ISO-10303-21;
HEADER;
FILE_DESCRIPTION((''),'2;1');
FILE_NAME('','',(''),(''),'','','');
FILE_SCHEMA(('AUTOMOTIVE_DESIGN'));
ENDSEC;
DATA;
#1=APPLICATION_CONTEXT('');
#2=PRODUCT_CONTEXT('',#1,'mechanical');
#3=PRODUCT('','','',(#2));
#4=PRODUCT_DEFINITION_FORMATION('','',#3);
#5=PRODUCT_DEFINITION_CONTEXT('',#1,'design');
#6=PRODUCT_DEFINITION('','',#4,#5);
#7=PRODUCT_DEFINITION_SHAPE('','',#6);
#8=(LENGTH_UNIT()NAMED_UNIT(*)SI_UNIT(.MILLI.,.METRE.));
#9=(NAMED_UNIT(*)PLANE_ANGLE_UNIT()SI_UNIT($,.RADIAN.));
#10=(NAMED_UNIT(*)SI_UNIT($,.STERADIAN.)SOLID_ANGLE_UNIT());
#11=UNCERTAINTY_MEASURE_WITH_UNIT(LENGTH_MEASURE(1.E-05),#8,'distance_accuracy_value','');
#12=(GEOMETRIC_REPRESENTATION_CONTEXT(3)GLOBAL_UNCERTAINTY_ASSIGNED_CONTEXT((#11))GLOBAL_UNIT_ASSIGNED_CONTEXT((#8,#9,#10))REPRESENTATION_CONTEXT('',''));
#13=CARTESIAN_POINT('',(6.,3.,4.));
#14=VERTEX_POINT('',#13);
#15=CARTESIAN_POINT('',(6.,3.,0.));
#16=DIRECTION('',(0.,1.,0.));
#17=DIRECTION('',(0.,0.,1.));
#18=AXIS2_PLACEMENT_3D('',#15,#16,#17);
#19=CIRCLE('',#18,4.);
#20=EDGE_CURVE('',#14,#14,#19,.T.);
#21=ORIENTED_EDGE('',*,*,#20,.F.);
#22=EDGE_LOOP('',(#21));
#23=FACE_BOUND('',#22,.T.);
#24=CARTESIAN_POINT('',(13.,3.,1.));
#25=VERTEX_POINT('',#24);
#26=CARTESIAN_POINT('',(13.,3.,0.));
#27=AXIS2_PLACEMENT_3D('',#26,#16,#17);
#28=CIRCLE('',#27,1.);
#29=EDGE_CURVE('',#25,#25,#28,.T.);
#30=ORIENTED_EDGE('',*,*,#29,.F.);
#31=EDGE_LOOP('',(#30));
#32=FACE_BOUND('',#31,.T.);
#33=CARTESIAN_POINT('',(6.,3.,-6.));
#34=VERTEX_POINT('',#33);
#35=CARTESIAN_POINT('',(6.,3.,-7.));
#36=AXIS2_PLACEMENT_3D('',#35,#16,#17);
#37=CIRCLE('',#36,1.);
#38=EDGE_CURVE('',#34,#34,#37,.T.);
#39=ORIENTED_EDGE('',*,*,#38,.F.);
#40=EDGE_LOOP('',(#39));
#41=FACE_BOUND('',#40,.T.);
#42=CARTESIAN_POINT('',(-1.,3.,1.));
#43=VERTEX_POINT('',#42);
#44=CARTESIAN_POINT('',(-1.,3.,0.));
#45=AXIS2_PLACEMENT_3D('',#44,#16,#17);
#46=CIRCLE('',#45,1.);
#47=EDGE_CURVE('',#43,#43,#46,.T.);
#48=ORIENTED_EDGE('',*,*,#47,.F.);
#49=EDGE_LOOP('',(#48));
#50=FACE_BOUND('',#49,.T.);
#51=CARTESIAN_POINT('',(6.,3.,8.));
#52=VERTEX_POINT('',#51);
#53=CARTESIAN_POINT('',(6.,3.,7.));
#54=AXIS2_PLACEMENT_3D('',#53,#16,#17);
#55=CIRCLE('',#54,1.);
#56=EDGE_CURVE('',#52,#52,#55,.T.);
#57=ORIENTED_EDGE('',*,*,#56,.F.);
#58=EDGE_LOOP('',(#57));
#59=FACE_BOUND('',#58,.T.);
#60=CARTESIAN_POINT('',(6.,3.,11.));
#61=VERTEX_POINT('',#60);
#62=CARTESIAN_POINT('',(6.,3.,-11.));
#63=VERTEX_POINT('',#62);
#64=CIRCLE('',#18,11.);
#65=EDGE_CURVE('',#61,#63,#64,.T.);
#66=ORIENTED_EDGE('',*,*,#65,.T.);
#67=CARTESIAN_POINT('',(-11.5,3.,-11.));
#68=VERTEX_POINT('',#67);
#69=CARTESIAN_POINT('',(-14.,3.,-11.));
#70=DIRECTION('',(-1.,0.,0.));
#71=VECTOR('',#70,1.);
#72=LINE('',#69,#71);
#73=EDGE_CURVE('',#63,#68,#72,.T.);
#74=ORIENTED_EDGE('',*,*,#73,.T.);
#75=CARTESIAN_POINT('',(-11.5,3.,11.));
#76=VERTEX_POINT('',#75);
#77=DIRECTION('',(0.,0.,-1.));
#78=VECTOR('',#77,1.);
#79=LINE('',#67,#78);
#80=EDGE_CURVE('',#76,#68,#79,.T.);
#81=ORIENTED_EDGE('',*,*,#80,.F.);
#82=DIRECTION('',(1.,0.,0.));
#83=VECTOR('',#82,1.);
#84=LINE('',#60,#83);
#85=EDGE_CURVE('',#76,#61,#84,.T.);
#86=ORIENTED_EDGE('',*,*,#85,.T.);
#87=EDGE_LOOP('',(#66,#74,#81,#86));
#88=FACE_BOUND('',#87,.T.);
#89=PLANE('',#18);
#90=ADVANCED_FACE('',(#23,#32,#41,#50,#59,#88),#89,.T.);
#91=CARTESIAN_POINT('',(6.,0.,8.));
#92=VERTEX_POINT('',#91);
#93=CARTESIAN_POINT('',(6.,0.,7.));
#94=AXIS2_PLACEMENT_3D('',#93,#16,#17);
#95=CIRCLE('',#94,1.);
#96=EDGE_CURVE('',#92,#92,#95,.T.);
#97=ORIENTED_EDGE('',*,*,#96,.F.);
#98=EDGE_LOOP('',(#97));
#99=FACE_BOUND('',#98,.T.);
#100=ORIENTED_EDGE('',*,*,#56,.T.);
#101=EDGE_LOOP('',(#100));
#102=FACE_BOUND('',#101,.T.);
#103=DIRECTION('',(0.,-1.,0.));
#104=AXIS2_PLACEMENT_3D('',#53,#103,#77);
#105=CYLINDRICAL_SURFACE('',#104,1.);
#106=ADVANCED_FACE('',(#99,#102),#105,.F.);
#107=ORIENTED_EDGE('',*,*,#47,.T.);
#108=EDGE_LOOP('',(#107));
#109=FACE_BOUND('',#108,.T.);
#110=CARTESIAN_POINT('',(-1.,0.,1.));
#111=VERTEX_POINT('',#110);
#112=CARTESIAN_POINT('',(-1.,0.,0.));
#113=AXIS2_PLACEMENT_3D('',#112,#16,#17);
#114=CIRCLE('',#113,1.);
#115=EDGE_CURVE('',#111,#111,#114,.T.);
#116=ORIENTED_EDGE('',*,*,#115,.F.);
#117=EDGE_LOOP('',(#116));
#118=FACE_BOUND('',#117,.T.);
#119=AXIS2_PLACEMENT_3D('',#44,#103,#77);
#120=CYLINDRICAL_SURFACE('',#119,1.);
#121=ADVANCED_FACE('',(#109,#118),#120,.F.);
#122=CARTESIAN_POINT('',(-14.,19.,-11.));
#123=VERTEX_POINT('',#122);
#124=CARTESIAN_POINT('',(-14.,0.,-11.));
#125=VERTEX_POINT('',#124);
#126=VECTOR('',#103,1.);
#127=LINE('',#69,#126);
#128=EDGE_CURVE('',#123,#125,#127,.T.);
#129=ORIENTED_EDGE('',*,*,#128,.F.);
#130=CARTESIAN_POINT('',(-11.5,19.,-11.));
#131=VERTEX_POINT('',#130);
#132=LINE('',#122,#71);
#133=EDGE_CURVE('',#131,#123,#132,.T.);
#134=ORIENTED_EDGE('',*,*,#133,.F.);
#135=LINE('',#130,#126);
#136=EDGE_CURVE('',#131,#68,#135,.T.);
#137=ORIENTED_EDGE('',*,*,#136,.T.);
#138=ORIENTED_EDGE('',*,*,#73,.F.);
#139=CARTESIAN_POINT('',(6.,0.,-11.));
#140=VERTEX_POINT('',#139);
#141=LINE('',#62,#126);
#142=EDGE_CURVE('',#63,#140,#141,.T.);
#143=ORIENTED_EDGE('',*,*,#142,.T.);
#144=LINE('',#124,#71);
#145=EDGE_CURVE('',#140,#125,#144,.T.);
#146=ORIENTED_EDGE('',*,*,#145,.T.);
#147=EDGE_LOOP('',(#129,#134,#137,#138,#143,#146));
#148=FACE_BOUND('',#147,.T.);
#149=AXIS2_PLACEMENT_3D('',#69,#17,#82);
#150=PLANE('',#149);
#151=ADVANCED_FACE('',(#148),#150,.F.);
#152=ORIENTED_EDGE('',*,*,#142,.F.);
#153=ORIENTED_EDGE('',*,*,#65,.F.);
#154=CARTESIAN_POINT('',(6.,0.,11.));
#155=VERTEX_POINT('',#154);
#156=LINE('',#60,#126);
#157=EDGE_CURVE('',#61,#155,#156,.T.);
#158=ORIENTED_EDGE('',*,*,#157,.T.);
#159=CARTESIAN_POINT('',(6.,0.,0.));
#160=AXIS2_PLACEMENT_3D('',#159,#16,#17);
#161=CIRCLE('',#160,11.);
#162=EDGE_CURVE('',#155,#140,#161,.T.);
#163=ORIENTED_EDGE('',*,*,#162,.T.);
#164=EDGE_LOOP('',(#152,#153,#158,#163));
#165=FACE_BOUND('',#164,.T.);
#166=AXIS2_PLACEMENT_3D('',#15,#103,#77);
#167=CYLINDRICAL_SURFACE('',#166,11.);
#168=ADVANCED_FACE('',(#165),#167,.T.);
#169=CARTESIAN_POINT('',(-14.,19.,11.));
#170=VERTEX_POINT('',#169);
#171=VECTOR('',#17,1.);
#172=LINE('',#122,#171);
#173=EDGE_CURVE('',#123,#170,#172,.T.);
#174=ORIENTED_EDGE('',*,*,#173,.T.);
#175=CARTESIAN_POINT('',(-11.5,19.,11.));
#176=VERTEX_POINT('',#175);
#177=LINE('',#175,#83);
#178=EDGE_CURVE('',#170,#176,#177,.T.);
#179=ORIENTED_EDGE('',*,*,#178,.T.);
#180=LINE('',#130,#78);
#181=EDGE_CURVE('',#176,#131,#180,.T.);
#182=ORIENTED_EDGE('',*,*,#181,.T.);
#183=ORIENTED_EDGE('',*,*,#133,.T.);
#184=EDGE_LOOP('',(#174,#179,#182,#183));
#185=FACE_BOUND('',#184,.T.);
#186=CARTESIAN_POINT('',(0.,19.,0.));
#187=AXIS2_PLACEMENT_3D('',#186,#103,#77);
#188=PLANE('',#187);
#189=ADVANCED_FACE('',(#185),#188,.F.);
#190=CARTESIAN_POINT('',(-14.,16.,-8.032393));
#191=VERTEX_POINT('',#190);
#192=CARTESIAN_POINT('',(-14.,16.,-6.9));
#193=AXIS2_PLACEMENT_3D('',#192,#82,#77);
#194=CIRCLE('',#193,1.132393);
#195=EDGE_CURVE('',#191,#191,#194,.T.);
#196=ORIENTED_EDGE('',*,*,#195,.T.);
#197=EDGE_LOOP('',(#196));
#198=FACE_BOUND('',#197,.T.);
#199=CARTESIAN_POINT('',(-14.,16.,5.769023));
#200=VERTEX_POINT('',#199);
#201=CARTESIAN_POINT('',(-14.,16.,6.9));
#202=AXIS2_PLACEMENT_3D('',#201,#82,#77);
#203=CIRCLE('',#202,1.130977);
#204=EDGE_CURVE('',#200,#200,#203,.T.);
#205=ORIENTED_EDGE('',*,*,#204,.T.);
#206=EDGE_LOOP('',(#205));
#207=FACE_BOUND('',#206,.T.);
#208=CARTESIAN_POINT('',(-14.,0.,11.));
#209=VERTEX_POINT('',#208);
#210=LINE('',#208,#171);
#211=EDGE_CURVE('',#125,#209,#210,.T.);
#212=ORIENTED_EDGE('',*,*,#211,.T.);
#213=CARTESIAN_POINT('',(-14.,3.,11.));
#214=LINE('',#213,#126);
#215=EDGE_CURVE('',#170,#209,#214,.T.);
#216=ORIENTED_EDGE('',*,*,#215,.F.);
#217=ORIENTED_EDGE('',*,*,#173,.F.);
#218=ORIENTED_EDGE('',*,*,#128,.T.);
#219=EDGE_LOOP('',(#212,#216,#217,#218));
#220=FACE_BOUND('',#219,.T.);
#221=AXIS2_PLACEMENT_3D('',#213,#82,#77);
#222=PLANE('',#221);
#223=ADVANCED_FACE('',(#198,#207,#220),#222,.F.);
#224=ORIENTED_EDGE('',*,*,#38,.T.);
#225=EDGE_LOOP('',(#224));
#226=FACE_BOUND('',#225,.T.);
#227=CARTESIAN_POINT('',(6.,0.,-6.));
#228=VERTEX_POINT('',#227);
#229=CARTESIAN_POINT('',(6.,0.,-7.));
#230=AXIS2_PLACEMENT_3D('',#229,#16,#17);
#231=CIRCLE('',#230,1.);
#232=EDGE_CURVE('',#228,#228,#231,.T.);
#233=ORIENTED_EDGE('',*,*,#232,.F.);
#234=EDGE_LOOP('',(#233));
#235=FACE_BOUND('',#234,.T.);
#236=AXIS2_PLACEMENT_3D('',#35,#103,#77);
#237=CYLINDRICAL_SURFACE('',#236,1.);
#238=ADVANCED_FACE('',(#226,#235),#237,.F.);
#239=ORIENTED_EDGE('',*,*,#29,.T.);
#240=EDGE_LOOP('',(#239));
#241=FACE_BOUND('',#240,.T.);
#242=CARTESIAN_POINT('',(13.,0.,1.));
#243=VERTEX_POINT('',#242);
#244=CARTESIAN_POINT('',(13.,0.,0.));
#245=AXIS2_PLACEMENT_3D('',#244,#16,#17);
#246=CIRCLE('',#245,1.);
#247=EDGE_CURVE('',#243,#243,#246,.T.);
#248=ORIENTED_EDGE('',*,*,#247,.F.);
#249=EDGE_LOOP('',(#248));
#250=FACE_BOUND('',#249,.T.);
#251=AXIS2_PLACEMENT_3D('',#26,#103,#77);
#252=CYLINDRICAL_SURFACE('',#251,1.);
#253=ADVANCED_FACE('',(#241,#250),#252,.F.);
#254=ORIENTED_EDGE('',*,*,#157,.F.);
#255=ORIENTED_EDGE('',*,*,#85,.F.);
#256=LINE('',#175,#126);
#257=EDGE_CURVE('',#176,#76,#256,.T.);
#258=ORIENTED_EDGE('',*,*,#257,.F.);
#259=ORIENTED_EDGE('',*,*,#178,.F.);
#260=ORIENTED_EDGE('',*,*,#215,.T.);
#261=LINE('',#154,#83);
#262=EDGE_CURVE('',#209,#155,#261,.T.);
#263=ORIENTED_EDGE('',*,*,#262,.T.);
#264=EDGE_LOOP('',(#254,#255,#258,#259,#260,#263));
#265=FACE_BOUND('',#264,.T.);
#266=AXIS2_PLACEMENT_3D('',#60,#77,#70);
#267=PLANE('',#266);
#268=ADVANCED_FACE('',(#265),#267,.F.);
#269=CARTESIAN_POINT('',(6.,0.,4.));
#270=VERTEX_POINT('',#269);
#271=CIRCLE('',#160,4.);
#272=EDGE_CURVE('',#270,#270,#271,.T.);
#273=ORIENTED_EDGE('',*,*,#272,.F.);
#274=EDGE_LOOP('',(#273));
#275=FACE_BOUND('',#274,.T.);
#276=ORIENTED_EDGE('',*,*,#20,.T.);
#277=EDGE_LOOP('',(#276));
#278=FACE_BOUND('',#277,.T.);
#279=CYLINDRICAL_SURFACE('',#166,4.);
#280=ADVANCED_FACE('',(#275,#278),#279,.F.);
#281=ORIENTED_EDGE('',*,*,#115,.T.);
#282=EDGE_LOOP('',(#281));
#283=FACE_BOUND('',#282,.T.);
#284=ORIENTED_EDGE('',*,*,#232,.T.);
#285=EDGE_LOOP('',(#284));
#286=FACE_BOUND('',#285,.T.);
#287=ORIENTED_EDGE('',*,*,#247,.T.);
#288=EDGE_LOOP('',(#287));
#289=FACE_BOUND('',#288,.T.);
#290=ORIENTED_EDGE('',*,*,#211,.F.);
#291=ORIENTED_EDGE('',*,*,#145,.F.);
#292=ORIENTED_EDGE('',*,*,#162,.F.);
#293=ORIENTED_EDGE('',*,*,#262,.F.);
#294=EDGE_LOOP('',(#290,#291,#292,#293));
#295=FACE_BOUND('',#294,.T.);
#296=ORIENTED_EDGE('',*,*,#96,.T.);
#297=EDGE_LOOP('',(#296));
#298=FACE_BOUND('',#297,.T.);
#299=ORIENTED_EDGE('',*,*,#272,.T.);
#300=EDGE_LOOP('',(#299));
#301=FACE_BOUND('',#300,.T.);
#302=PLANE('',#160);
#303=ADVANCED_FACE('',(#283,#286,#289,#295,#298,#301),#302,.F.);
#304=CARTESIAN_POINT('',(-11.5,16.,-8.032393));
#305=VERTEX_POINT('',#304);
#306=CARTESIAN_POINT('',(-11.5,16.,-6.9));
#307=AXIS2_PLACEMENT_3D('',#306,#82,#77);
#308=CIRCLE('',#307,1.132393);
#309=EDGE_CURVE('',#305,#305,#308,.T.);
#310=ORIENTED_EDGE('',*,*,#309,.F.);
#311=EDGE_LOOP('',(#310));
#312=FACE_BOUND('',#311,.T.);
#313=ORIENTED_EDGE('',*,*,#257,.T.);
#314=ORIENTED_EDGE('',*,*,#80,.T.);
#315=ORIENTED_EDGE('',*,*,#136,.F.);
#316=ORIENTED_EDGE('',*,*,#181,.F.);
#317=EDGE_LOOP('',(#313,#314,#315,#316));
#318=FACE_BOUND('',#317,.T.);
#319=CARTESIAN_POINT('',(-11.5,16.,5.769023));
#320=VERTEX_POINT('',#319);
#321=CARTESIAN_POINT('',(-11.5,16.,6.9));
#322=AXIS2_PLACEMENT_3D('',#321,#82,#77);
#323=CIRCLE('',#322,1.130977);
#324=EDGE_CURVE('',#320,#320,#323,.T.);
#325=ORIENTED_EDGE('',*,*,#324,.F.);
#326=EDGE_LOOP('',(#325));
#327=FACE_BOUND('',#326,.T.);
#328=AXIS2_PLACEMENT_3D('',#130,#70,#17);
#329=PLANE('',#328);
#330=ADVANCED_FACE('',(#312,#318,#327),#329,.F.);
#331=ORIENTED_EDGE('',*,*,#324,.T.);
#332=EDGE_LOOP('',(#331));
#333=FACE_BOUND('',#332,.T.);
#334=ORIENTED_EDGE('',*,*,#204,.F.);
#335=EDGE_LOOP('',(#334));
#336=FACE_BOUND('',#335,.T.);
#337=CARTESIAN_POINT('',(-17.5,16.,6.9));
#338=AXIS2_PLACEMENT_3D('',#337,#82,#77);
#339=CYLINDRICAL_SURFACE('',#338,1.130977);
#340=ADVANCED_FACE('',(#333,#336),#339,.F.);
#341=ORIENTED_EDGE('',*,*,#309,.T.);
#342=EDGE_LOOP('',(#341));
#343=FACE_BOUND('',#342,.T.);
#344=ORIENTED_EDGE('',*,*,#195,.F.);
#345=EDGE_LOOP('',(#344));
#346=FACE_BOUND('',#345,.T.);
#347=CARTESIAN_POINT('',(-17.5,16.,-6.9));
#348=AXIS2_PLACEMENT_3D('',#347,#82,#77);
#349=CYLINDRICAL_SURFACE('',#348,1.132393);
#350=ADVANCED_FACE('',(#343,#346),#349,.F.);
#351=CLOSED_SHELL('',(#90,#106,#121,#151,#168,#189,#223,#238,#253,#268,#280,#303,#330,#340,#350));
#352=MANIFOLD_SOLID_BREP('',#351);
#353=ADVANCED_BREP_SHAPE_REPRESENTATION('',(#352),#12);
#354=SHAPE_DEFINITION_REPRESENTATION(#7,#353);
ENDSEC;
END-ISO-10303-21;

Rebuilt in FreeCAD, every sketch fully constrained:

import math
import FreeCAD as App
import Part
import Sketcher

doc = App.newDocument("Part")
body = doc.addObject("PartDesign::Body", "Body")

# Sketch on XZ plane
sketch1 = body.newObject("Sketcher::SketchObject", "Sketch")
sketch1.AttachmentSupport = (doc.getObject("XZ_Plane"), [""])
sketch1.MapMode = "FlatFace"
sketch1.addGeometry([
    Part.LineSegment(App.Vector(-14, -11, 0), App.Vector(-14, 11, 0)),  # 0
    Part.LineSegment(App.Vector(-14, 11, 0), App.Vector(6, 11, 0)),  # 1
    Part.ArcOfCircle(Part.Circle(App.Vector(6, 0, 0), App.Vector(0, 0, 1), 11), math.radians(-90), math.radians(90)),  # 2
    Part.LineSegment(App.Vector(6, -11, 0), App.Vector(-14, -11, 0)),  # 3
    Part.Circle(App.Vector(6, 7, 0), App.Vector(0, 0, 1), 1),  # 4
    Part.Circle(App.Vector(13, 0, 0), App.Vector(0, 0, 1), 1),  # 5
    Part.Circle(App.Vector(6, 0, 0), App.Vector(0, 0, 1), 4),  # 6
    Part.Circle(App.Vector(-1, 0, 0), App.Vector(0, 0, 1), 1),  # 7
    Part.Circle(App.Vector(6, -7, 0), App.Vector(0, 0, 1), 1),  # 8
], False)
sketch1.addConstraint([
    Sketcher.Constraint("Coincident", 0, 2, 1, 1),
    Sketcher.Constraint("Tangent", 1, 2, 2, 2),
    Sketcher.Constraint("Tangent", 2, 1, 3, 1),
    Sketcher.Constraint("Coincident", 3, 2, 0, 1),
    Sketcher.Constraint("Vertical", 0),
    Sketcher.Constraint("Horizontal", 1),
    Sketcher.Constraint("Horizontal", 3),
    Sketcher.Constraint("Coincident", 6, 3, 2, 3),
    Sketcher.Constraint("Equal", 4, 5),
    Sketcher.Constraint("Equal", 5, 7),
    Sketcher.Constraint("Equal", 7, 8),
    Sketcher.Constraint("Symmetric", 4, 3, 8, 3, -1),
    Sketcher.Constraint("PointOnObject", 2, 3, -1),
    Sketcher.Constraint("PointOnObject", 5, 3, -1),
    Sketcher.Constraint("PointOnObject", 7, 3, -1),
    Sketcher.Constraint("Vertical", 2, 3, 4, 3),
    Sketcher.Constraint("Diameter", 4, 2.0),
    Sketcher.Constraint("Diameter", 6, 8.0),
    Sketcher.Constraint("Radius", 2, 11.0),
    Sketcher.Constraint("DistanceX", 1, 1, 1, 2, 20.0),
    Sketcher.Constraint("DistanceX", -1, 1, 2, 3, 6.0),
    Sketcher.Constraint("DistanceY", -1, 1, 4, 3, 7.0),
    Sketcher.Constraint("DistanceX", -1, 1, 5, 3, 13.0),
    Sketcher.Constraint("DistanceX", 7, 3, -1, 1, 1.0),
])
pad1 = body.newObject("PartDesign::Pad", "Pad")
pad1.Profile = sketch1
pad1.Length = 3
pad1.Reversed = True

# Sketch on XZ plane
sketch2 = body.newObject("Sketcher::SketchObject", "Sketch001")
sketch2.AttachmentSupport = (doc.getObject("XZ_Plane"), [""])
sketch2.MapMode = "FlatFace"
sketch2.AttachmentOffset = App.Placement(App.Vector(0, 0, -3), App.Rotation())
sketch2.addGeometry([
    Part.LineSegment(App.Vector(-14, -11, 0), App.Vector(-14, 11, 0)),
    Part.LineSegment(App.Vector(-14, 11, 0), App.Vector(-11.5, 11, 0)),
    Part.LineSegment(App.Vector(-11.5, 11, 0), App.Vector(-11.5, -11, 0)),
    Part.LineSegment(App.Vector(-11.5, -11, 0), App.Vector(-14, -11, 0)),
], False)
sketch2.addConstraint([
    Sketcher.Constraint("Coincident", 0, 2, 1, 1),
    Sketcher.Constraint("Coincident", 1, 2, 2, 1),
    Sketcher.Constraint("Coincident", 2, 2, 3, 1),
    Sketcher.Constraint("Coincident", 3, 2, 0, 1),
    Sketcher.Constraint("Vertical", 0),
    Sketcher.Constraint("Horizontal", 1),
    Sketcher.Constraint("Vertical", 2),
    Sketcher.Constraint("Horizontal", 3),
    Sketcher.Constraint("DistanceY", 0, 1, 0, 2, 22.0),
    Sketcher.Constraint("DistanceX", 1, 1, 1, 2, 2.5),
    Sketcher.Constraint("DistanceX", 0, 2, -1, 1, 14.0),
    Sketcher.Constraint("DistanceY", -1, 1, 0, 2, 11.0),
])
pad2 = body.newObject("PartDesign::Pad", "Pad001")
pad2.Profile = sketch2
pad2.Length = 16
pad2.Reversed = True

# Sketch on YZ plane
sketch3 = body.newObject("Sketcher::SketchObject", "Sketch002")
sketch3.AttachmentSupport = (doc.getObject("YZ_Plane"), [""])
sketch3.MapMode = "FlatFace"
sketch3.AttachmentOffset = App.Placement(App.Vector(0, 0, -11.5), App.Rotation())
sketch3.addGeometry([
    Part.Circle(App.Vector(16, -6.9, 0), App.Vector(0, 0, 1), 1.1),
    Part.Circle(App.Vector(16, 6.9, 0), App.Vector(0, 0, 1), 1.1),
], False)
sketch3.addConstraint([
    Sketcher.Constraint("Symmetric", 0, 3, 1, 3, -1),
    Sketcher.Constraint("DistanceX", -1, 1, 0, 3, 16.0),
    Sketcher.Constraint("DistanceY", 0, 3, -1, 1, 6.9),
    Sketcher.Constraint("Diameter", 0, 2.264787),
    Sketcher.Constraint("Diameter", 1, 2.261955),
])
pocket1 = body.newObject("PartDesign::Pocket", "Pocket")
pocket1.Profile = sketch3
pocket1.Length = 6

doc.recompute()
